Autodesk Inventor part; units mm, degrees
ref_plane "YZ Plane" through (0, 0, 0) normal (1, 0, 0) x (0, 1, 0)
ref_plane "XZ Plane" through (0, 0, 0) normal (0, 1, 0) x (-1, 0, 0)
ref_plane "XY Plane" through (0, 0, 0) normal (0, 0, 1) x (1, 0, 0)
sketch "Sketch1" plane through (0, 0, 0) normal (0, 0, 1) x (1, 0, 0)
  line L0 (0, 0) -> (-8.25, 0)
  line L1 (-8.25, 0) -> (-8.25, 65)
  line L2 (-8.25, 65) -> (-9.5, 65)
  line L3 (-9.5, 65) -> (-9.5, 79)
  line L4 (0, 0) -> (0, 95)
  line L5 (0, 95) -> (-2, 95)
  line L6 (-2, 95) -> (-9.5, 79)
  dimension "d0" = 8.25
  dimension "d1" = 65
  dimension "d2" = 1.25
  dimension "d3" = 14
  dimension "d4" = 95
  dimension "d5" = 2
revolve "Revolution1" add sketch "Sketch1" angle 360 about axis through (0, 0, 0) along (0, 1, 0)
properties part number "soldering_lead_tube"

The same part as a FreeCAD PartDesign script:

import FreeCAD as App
import Part
import Sketcher

V = App.Vector
Q = App.Units.Quantity


def add_polygon(sketch, points):
    """Adds a closed chain of lines whose ends are joined by coincident constraints."""
    first, n = sketch.GeometryCount, len(points)
    for a, b in zip(points, points[1:] + points[:1]):
        sketch.addGeometry(Part.LineSegment(App.Vector(*a, 0), App.Vector(*b, 0)), False)
    for i in range(n):
        sketch.addConstraint(Sketcher.Constraint("Coincident", first + i, 2, first + (i + 1) % n, 1))

doc = App.newDocument("Part")
params = doc.addObject("Spreadsheet::Sheet", "Params")
for row, (alias, value) in enumerate([
    ("sketch1_width", "2 mm"),
    ("sketch1_height", "95 mm"),
    ("sketch1_height2", "14 mm"),
    ("sketch1_height3", "65 mm"),
    ("sketch1_width2", "8.25 mm"),
    ("revolution_angle", "360 deg"),
], start=1):
    params.set(f"A{row}", alias)
    params.set(f"B{row}", "=" + value)
    params.setAlias(f"B{row}", alias)

body = doc.addObject("PartDesign::Body", "Body")

# Sketch on XY plane
sketch1 = body.newObject("Sketcher::SketchObject", "Sketch")
sketch1.AttachmentSupport = (doc.getObject("XY_Plane"), [""])
sketch1.MapMode = "FlatFace"
add_polygon(sketch1, [(-8.2, 0), (0, 0), (0, 95), (-2, 95), (-9.5, 79), (-9.5, 65), (-8.2, 65)])  # lines 0-6
sketch1.addConstraint(Sketcher.Constraint("Horizontal", 0))
sketch1.addConstraint(Sketcher.Constraint("Vertical", 1))
sketch1.addConstraint(Sketcher.Constraint("Horizontal", 2))
sketch1.addConstraint(Sketcher.Constraint("Vertical", 4))
sketch1.addConstraint(Sketcher.Constraint("Horizontal", 5))
sketch1.addConstraint(Sketcher.Constraint("Vertical", 6))
sketch1.addConstraint(Sketcher.Constraint("Coincident", 0, 2, -1, 1))
sketch1.addConstraint(Sketcher.Constraint("DistanceX", 2, 2, 2, 1, Q("2 mm")))
sketch1.addConstraint(Sketcher.Constraint("DistanceY", 1, 1, 1, 2, Q("95 mm")))
sketch1.addConstraint(Sketcher.Constraint("DistanceY", 4, 2, 4, 1, Q("14 mm")))
sketch1.addConstraint(Sketcher.Constraint("DistanceY", 6, 2, 6, 1, Q("65 mm")))
sketch1.addConstraint(Sketcher.Constraint("DistanceX", 0, 1, 0, 2, Q("8.25 mm")))
sketch1.addConstraint(Sketcher.Constraint("DistanceX", 5, 1, 5, 2, Q("1.25 mm")))
sketch1.setExpression("Constraints[14]", "Params.sketch1_width")
sketch1.setExpression("Constraints[15]", "Params.sketch1_height")
sketch1.setExpression("Constraints[16]", "Params.sketch1_height2")
sketch1.setExpression("Constraints[17]", "Params.sketch1_height3")
sketch1.setExpression("Constraints[18]", "Params.sketch1_width2")
revolution = body.newObject("PartDesign::Revolution", "Revolution")
revolution.Profile = sketch1
revolution.ReferenceAxis = (sketch1, ["V_Axis"])
revolution.setExpression("Angle", "Params.revolution_angle")

doc.recompute()
